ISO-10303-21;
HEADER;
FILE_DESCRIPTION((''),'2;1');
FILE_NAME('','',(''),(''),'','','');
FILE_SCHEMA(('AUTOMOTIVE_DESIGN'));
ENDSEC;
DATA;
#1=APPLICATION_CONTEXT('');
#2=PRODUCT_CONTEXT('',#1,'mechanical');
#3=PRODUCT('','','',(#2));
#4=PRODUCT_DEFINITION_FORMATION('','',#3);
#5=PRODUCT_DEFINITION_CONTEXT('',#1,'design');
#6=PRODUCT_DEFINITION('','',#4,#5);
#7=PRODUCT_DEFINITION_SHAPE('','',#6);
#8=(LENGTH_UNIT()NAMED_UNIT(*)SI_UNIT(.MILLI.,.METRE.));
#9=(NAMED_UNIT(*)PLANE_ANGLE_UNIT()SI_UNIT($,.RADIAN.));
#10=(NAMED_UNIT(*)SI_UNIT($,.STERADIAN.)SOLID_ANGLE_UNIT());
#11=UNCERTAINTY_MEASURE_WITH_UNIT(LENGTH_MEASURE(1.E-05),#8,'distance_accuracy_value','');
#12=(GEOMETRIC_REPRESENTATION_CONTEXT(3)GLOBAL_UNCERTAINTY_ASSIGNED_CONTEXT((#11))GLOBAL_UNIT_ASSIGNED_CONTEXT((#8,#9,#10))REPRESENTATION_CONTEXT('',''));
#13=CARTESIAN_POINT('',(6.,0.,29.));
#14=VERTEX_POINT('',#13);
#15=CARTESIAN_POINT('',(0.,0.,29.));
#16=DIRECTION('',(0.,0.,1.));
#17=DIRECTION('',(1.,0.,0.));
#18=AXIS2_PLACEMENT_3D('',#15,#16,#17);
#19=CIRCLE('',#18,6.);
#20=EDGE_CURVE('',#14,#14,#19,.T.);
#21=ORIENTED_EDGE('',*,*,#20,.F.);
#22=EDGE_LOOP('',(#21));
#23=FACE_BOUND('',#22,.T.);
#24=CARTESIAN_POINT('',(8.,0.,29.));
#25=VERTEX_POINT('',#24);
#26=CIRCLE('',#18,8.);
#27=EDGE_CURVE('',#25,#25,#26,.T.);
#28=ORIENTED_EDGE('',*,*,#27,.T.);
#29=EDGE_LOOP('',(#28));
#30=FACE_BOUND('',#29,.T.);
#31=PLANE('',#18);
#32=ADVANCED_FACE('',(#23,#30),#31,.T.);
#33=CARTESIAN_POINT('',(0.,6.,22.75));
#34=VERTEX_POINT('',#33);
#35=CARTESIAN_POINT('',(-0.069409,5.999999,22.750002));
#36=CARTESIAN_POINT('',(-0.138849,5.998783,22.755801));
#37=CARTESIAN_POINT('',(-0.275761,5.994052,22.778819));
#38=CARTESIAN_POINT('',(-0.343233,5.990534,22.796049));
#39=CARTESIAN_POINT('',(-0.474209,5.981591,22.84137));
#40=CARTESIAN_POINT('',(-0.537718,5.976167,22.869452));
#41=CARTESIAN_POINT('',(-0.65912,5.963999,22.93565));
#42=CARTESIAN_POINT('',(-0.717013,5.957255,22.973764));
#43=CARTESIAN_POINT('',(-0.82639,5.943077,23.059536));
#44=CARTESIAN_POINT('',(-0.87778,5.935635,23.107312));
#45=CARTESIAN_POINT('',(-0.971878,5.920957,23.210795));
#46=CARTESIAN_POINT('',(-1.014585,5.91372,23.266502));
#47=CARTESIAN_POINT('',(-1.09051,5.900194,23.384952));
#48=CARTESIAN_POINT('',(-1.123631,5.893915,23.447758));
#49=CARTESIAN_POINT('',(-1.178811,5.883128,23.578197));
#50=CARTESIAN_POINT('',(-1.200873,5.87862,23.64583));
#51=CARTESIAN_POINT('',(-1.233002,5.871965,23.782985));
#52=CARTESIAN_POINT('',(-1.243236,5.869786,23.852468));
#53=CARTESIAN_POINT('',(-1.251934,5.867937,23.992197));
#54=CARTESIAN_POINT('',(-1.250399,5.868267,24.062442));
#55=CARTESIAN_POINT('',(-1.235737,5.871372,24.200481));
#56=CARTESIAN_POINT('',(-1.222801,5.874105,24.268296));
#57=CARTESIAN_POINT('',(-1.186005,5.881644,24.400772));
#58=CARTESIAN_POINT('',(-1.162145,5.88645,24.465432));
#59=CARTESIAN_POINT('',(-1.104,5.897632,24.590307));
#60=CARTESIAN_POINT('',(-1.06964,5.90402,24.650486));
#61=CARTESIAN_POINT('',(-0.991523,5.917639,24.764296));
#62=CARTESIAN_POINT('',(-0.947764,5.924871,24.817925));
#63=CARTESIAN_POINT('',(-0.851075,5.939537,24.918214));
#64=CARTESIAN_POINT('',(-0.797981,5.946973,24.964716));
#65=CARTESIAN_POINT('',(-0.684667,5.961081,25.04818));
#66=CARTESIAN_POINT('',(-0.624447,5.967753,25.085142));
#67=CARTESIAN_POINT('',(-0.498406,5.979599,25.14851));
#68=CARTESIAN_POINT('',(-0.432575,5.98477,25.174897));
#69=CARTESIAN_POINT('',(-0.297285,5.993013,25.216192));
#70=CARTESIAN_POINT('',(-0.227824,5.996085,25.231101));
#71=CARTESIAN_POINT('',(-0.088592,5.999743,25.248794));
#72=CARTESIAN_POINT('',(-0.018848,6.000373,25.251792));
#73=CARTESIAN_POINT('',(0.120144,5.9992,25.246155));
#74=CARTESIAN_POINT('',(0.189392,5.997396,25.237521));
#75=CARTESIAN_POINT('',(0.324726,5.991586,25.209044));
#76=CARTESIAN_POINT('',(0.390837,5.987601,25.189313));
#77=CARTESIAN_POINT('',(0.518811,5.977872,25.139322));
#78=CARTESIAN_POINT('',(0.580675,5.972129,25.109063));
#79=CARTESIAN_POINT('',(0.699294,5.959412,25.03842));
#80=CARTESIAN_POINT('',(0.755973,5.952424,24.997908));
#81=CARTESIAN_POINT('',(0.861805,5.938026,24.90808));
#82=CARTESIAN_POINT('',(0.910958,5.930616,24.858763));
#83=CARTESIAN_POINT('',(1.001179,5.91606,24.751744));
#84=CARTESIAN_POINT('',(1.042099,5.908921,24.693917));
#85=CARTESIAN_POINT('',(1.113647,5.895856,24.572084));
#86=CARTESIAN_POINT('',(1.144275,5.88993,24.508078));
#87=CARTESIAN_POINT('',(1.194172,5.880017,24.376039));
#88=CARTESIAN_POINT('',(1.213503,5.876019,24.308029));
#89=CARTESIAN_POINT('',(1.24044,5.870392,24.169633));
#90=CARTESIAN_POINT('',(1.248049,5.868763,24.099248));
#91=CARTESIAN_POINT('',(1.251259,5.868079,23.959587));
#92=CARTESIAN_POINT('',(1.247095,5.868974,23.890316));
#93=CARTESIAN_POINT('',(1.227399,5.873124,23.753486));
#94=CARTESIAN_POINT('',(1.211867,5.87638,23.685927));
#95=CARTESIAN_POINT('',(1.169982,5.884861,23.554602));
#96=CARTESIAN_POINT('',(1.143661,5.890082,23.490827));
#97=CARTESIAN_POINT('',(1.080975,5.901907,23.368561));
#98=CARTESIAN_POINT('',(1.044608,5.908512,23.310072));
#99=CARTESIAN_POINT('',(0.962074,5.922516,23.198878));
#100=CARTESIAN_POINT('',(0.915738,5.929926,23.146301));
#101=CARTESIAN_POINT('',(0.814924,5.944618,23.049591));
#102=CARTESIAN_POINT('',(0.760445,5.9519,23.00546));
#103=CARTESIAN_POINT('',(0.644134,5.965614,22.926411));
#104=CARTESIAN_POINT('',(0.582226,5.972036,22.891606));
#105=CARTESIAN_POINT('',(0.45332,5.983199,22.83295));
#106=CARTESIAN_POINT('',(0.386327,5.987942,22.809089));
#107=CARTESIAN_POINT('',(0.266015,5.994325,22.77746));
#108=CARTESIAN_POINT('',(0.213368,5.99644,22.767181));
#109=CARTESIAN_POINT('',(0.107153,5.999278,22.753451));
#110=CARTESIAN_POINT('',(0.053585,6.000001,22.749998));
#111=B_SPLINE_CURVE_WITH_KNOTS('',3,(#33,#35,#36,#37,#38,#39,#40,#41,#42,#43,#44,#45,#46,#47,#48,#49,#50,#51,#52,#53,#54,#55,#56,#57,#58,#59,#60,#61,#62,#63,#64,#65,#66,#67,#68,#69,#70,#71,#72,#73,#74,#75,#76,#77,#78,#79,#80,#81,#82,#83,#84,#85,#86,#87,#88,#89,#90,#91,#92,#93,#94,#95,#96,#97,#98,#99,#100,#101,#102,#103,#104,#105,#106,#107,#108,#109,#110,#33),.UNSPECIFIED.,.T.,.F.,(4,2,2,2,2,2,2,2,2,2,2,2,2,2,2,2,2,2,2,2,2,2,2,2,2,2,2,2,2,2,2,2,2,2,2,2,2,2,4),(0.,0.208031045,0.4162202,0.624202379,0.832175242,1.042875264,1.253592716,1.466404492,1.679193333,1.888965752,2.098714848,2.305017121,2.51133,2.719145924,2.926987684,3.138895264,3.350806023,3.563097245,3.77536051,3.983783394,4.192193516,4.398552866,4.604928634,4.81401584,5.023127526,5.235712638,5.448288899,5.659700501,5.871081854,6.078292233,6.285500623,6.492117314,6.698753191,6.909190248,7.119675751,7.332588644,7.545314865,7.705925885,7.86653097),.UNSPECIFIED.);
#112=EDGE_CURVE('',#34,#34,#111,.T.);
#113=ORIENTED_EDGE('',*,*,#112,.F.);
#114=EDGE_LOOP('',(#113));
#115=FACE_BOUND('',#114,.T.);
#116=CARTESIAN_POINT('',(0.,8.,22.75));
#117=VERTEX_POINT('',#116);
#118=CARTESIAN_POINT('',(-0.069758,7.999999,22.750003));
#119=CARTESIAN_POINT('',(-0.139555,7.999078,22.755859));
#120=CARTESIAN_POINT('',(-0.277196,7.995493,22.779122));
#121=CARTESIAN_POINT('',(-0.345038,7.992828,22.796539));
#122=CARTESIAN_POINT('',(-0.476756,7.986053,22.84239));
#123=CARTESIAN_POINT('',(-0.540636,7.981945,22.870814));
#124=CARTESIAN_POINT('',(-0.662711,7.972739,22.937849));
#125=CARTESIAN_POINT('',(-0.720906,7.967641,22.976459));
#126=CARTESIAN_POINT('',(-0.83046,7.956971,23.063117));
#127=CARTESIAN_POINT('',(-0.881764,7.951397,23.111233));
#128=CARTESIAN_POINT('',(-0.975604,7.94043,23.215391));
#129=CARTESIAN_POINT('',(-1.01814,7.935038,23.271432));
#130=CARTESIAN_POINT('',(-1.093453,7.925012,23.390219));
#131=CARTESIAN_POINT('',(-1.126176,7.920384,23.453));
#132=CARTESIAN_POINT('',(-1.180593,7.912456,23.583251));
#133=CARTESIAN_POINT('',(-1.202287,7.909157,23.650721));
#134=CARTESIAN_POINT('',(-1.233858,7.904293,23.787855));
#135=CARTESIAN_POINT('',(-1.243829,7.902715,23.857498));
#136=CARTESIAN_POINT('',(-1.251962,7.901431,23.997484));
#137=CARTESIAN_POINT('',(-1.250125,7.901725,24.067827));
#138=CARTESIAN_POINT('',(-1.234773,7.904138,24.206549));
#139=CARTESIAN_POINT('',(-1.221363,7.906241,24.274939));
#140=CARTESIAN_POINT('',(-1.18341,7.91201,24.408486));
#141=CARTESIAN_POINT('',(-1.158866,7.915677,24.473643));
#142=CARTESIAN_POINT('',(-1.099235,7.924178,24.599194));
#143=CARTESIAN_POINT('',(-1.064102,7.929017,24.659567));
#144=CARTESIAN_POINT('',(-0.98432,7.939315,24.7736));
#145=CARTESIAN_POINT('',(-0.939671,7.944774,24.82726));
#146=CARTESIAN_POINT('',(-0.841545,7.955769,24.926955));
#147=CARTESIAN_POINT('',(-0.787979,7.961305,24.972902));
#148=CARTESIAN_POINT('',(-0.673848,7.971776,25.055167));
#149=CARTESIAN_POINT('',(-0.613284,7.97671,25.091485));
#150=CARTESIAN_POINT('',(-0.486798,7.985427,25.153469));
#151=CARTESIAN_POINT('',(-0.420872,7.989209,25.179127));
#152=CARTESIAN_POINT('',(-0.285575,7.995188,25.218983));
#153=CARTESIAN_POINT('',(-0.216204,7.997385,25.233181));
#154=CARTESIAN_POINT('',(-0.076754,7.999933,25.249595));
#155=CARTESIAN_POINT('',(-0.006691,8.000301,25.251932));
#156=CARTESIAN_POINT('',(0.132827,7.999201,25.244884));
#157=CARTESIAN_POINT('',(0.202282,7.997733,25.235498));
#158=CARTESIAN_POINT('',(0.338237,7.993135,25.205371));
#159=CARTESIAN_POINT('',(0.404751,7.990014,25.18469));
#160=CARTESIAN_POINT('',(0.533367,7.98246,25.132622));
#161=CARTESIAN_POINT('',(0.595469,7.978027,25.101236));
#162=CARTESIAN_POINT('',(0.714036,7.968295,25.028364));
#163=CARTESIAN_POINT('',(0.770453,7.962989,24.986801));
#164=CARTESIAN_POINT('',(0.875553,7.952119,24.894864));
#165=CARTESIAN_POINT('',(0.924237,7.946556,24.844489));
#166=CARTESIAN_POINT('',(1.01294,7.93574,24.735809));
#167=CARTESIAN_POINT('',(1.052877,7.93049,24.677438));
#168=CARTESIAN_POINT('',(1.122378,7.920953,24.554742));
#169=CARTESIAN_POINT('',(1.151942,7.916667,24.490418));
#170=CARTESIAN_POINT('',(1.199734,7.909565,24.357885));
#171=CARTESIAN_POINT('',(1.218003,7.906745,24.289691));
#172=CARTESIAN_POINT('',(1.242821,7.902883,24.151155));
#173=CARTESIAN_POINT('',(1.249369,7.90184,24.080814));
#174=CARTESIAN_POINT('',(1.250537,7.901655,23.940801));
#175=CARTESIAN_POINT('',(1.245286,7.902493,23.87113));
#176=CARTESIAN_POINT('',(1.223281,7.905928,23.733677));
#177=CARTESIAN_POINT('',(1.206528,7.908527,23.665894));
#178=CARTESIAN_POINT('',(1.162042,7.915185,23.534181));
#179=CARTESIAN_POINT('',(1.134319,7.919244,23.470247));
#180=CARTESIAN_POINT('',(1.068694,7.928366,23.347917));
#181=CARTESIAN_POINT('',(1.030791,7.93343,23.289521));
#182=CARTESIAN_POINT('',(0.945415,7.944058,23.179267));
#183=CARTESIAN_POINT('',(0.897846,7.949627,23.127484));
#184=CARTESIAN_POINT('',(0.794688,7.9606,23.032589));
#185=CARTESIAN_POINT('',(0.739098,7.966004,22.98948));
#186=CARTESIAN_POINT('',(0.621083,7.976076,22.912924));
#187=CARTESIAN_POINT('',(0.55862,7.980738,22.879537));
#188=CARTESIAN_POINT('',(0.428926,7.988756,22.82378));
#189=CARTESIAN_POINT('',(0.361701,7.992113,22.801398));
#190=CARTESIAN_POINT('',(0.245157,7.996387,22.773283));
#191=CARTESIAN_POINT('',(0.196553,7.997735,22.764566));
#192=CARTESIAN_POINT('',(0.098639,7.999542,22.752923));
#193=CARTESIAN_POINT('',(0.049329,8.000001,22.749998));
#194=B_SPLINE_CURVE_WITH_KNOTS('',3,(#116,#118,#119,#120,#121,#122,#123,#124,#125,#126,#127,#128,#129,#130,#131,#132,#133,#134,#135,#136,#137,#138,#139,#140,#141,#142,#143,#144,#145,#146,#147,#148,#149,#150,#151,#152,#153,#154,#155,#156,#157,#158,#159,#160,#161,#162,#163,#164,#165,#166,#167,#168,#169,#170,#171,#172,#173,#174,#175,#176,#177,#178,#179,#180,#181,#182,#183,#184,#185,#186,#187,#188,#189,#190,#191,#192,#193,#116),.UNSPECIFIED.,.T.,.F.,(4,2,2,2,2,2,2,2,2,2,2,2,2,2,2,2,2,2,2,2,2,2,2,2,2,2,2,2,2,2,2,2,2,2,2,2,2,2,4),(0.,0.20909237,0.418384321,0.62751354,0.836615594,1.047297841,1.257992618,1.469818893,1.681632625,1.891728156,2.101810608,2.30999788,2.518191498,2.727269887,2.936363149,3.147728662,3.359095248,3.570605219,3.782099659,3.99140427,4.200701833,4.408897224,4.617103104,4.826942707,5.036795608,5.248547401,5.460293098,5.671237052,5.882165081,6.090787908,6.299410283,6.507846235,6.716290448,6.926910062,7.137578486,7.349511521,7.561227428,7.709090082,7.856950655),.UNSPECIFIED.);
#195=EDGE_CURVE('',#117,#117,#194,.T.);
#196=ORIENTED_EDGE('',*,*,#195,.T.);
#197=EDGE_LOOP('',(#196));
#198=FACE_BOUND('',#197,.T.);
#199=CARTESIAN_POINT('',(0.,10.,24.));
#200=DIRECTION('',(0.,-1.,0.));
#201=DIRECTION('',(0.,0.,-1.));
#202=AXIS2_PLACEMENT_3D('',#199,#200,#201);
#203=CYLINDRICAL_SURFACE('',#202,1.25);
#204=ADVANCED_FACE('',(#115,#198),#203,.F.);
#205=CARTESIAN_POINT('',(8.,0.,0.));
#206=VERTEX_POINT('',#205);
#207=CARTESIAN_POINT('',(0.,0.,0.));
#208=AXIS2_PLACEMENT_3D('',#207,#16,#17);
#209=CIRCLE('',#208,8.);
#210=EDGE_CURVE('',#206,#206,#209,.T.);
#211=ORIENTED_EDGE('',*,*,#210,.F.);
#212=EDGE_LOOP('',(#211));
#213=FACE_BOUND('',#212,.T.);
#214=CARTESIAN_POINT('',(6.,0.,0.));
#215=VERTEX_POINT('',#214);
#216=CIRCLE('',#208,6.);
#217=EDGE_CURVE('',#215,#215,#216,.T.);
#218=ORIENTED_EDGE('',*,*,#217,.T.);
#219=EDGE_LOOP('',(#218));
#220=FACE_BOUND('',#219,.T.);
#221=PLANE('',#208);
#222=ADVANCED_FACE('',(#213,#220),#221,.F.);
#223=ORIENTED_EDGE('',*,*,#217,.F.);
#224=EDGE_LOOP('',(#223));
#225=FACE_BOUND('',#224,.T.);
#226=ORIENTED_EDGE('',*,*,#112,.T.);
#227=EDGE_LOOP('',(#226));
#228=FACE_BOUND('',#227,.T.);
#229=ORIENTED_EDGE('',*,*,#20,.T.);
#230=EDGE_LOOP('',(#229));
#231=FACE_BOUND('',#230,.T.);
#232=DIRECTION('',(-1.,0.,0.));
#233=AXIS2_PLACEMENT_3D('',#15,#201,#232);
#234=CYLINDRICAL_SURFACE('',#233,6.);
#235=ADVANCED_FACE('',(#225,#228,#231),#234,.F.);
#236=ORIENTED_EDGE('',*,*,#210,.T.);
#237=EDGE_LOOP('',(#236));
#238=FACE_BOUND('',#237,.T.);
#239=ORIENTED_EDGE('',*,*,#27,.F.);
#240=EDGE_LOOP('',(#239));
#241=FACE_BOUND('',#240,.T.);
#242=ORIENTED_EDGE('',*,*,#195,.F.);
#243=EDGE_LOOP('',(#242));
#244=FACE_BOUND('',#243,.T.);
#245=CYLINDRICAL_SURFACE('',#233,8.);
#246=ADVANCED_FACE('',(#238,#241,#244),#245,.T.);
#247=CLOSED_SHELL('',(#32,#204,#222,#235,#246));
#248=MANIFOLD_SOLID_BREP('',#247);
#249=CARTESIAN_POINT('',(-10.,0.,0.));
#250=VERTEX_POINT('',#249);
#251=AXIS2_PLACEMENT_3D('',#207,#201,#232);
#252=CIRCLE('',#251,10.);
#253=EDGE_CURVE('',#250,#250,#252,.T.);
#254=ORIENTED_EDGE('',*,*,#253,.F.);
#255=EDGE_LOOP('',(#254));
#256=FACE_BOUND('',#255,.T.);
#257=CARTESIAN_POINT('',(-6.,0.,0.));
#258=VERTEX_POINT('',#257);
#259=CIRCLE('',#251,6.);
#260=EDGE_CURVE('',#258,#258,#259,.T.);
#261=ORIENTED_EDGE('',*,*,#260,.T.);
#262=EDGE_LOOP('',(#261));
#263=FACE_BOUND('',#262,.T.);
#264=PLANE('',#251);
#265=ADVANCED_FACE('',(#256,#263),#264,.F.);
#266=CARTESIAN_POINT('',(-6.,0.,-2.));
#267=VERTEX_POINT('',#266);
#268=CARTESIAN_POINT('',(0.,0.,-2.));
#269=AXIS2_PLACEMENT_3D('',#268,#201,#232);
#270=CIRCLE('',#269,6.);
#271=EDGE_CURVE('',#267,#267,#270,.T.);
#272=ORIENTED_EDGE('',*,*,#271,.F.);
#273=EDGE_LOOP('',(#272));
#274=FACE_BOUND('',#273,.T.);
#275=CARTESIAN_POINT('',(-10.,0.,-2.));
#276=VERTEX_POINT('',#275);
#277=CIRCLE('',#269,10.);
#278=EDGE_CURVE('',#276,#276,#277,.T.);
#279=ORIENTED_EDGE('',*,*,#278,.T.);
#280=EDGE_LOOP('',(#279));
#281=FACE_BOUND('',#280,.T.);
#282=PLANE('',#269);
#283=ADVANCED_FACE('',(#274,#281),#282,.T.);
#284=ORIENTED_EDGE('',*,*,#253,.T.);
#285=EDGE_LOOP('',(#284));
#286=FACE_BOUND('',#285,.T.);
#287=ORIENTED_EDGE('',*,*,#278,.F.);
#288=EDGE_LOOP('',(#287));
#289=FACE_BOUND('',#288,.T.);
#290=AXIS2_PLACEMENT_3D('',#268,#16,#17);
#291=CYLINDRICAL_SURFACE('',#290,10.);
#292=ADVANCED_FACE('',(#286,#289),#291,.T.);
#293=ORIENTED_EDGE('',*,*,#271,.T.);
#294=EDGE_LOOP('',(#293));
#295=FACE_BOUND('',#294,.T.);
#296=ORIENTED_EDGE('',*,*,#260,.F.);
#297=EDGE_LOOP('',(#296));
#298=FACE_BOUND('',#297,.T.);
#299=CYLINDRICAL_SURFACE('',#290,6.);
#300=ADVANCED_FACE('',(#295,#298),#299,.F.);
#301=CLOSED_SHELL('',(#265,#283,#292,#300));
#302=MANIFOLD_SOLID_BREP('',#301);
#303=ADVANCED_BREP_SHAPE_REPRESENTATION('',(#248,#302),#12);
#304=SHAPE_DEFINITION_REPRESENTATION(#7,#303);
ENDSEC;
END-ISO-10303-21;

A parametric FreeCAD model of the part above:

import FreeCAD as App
import Part
import Sketcher

doc = App.newDocument("Part")
body = doc.addObject("PartDesign::Body", "Body")

# Sketch on XY plane
sketch1 = doc.addObject("Sketcher::SketchObject", "Sketch")
body.addObject(sketch1)
sketch1.AttachmentSupport = (doc.XY_Plane, [""])
sketch1.MapMode = "FlatFace"
sketch1.addGeometry([
    Part.Circle(App.Vector(0, 0, 0), App.Vector(0, 0, 1), 8),
    Part.Circle(App.Vector(0, 0, 0), App.Vector(0, 0, 1), 6),
], False)
sketch1.addConstraint([
    Sketcher.Constraint("Coincident", 0, 3, -1, 1),
    Sketcher.Constraint("Coincident", 1, 3, -1, 1),
    Sketcher.Constraint("Diameter", 0, 16.0),
    Sketcher.Constraint("Diameter", 1, 12.0),
])
pad1 = doc.addObject("PartDesign::Pad", "Pad")
body.addObject(pad1)
pad1.Profile = sketch1
pad1.Length = 29

# Sketch on XZ plane
sketch2 = doc.addObject("Sketcher::SketchObject", "Sketch001")
body.addObject(sketch2)
sketch2.AttachmentSupport = (doc.XZ_Plane, [""])
sketch2.MapMode = "FlatFace"
sketch2.addGeometry(Part.Circle(App.Vector(0, 24, 0), App.Vector(0, 0, 1), 1.2), False)
sketch2.addConstraint([
    Sketcher.Constraint("PointOnObject", 0, 3, -2),
    Sketcher.Constraint("Diameter", 0, 2.5),
    Sketcher.Constraint("DistanceY", -1, 1, 0, 3, 24.0),
])
pocket1 = doc.addObject("PartDesign::Pocket", "Pocket")
body.addObject(pocket1)
pocket1.Profile = sketch2
pocket1.Type = "ThroughAll"
body2 = doc.addObject("PartDesign::Body", "Body001")

# Sketch on XY plane
sketch3 = doc.addObject("Sketcher::SketchObject", "Sketch002")
body2.addObject(sketch3)
sketch3.AttachmentSupport = (doc.getObject("XY_Plane001"), [""])
sketch3.MapMode = "FlatFace"
sketch3.addGeometry([
    Part.Circle(App.Vector(0, 0, 0), App.Vector(0, 0, 1), 10),
    Part.Circle(App.Vector(0, 0, 0), App.Vector(0, 0, 1), 6),
], False)
sketch3.addConstraint([
    Sketcher.Constraint("Coincident", 0, 3, -1, 1),
    Sketcher.Constraint("Coincident", 1, 3, -1, 1),
    Sketcher.Constraint("Diameter", 0, 20.0),
    Sketcher.Constraint("Diameter", 1, 12.0),
])
pad2 = doc.addObject("PartDesign::Pad", "Pad001")
body2.addObject(pad2)
pad2.Profile = sketch3
pad2.Length = 2
pad2.Reversed = True

doc.recompute()
